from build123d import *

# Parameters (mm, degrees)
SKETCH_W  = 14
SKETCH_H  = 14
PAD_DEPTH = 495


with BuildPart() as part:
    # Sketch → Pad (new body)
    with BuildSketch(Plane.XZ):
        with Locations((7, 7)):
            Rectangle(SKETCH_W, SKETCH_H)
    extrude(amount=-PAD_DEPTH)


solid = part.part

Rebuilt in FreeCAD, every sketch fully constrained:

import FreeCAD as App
import Part
import Sketcher
from FreeCAD import Vector


def add_polygon(sketch, points):
    """Adds a closed chain of lines whose ends are joined by coincident constraints."""
    first, n = sketch.GeometryCount, len(points)
    for a, b in zip(points, points[1:] + points[:1]):
        sketch.addGeometry(Part.LineSegment(App.Vector(*a, 0), App.Vector(*b, 0)), False)
    for i in range(n):
        sketch.addConstraint(Sketcher.Constraint("Coincident", first + i, 2, first + (i + 1) % n, 1))

doc = App.newDocument("Part")
params = doc.addObject("Spreadsheet::Sheet", "Params")
for row, (alias, value) in enumerate([
    ("sketch1_width", "14 mm"),
    ("pad1_length", "495 mm"),
], start=1):
    params.set(f"A{row}", alias)
    params.set(f"B{row}", "=" + value)
    params.setAlias(f"B{row}", alias)

body = doc.addObject("PartDesign::Body", "Body")

sketch1 = body.newObject("Sketcher::SketchObject", "Sketch")
sketch1.AttachmentSupport = (doc.getObject("XZ_Plane"), [""])
sketch1.MapMode = "FlatFace"
add_polygon(sketch1, [(0, 14), (0, 0), (14, 0), (14, 14)])
sketch1.addConstraint(Sketcher.Constraint("Vertical", 0))
sketch1.addConstraint(Sketcher.Constraint("Horizontal", 1))
sketch1.addConstraint(Sketcher.Constraint("Vertical", 2))
sketch1.addConstraint(Sketcher.Constraint("Horizontal", 3))
sketch1.addConstraint(Sketcher.Constraint("Coincident", 0, 2, -1, 1))
sketch1.addConstraint(Sketcher.Constraint("Equal", 3, 0))
sketch1.addConstraint(Sketcher.Constraint("DistanceX", 1, 1, 1, 2, 14.0))
sketch1.setExpression("Constraints[10]", "Params.sketch1_width")
pad1 = body.newObject("PartDesign::Pad", "Pad")
pad1.Profile = sketch1
pad1.setExpression("Length", "Params.pad1_length")
pad1.Reversed = True

doc.recompute()
